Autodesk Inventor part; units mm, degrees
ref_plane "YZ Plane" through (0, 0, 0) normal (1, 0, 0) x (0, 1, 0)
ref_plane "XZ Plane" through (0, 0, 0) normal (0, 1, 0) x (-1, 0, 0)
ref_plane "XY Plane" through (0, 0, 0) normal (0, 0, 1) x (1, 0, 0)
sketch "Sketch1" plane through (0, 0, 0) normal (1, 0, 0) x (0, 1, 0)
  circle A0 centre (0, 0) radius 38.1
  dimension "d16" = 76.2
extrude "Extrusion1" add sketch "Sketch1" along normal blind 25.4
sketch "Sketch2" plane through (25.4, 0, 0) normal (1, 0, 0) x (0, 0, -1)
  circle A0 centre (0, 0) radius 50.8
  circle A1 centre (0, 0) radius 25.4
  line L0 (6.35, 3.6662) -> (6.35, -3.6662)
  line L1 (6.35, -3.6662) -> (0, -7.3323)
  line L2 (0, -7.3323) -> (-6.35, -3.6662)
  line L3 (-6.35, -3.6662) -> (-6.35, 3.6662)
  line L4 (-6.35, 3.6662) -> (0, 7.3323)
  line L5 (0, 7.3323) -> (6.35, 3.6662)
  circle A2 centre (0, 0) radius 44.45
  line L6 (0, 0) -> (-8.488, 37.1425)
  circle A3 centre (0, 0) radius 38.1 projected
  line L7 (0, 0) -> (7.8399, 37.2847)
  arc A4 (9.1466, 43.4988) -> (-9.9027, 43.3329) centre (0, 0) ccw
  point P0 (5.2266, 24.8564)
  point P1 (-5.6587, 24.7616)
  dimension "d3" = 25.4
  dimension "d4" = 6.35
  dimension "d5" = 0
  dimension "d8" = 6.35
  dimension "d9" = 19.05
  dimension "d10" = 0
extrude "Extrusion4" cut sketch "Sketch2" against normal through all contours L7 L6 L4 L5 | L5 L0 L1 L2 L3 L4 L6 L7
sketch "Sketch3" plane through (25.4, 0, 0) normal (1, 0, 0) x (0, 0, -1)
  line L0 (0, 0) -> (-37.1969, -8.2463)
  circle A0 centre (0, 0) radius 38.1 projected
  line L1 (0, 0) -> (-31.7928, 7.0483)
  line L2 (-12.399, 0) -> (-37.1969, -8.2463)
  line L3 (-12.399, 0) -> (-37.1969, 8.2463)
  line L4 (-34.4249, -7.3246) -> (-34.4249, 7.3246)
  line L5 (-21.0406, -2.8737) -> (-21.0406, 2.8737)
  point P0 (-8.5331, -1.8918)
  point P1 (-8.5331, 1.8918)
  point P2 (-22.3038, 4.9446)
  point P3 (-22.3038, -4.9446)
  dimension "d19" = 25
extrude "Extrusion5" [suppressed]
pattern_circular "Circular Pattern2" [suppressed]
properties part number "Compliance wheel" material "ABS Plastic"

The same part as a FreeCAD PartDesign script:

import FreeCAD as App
import Part
import Sketcher

V = App.Vector
Q = App.Units.Quantity

doc = App.newDocument("Part")
body = doc.addObject("PartDesign::Body", "Body")

# Sketch on YZ plane
sketch1 = body.newObject("Sketcher::SketchObject", "Sketch")
sketch1.AttachmentSupport = (doc.getObject("YZ_Plane"), [""])
sketch1.MapMode = "FlatFace"
sketch1.addGeometry(Part.Circle(V(0, 0, 0), V(0, 0, 1), 38), False)
sketch1.addConstraint([
    Sketcher.Constraint("Coincident", 0, 3, -1, 1),
    Sketcher.Constraint("Diameter", 0, Q("3 in")),
])
pad1 = body.newObject("PartDesign::Pad", "Pad")
pad1.Profile = sketch1
pad1.Length = Q("1 in")

# Sketch on YZ plane
sketch2 = body.newObject("Sketcher::SketchObject", "Sketch001")
sketch2.AttachmentSupport = (doc.getObject("YZ_Plane"), [""])
sketch2.MapMode = "FlatFace"
sketch2.AttachmentOffset = App.Placement(V(0, 0, 1 * 25.4), App.Rotation())
sketch2.addGeometry([
    Part.LineSegment(V(7, 0, 0), V(4, 6, 0)),  # 0
    Part.LineSegment(V(4, 6, 0), V(-4, 6, 0)),  # 1
    Part.LineSegment(V(-4, 6, 0), V(-7, 0, 0)),  # 2
    Part.LineSegment(V(-7, 0, 0), V(-4, -6, 0)),  # 3
    Part.LineSegment(V(-4, -6, 0), V(4, -6, 0)),  # 4
    Part.LineSegment(V(4, -6, 0), V(7, 0, 0)),  # 5
], False)
sketch2.addConstraint([
    Sketcher.Constraint("Coincident", 0, 2, 1, 1),
    Sketcher.Constraint("Coincident", 1, 2, 2, 1),
    Sketcher.Constraint("Coincident", 2, 2, 3, 1),
    Sketcher.Constraint("Coincident", 3, 2, 4, 1),
    Sketcher.Constraint("Coincident", 4, 2, 5, 1),
    Sketcher.Constraint("Coincident", 5, 2, 0, 1),
    Sketcher.Constraint("Horizontal", 1),
    Sketcher.Constraint("Horizontal", 4),
    Sketcher.Constraint("Symmetric", 0, 2, 3, 2, -1, 1),
    Sketcher.Constraint("Symmetric", 2, 2, 5, 2, -1, 1),
    Sketcher.Constraint("PointOnObject", 2, 2, -1),
    Sketcher.Constraint("Parallel", 2, 5),
    Sketcher.Constraint("Vertical", 1, 2, 3, 2),
    Sketcher.Constraint("DistanceY", -1, 1, 0, 2, Q("0.25 in")),
    Sketcher.Constraint("Angle", 0, Q("119.9995 deg")),
    Sketcher.Constraint("DistanceX", 2, 2, 0, 2, Q("0.433 in")),
])
pocket1 = body.newObject("PartDesign::Pocket", "Pocket")
pocket1.Profile = sketch2
pocket1.Type = "ThroughAll"

doc.recompute()
